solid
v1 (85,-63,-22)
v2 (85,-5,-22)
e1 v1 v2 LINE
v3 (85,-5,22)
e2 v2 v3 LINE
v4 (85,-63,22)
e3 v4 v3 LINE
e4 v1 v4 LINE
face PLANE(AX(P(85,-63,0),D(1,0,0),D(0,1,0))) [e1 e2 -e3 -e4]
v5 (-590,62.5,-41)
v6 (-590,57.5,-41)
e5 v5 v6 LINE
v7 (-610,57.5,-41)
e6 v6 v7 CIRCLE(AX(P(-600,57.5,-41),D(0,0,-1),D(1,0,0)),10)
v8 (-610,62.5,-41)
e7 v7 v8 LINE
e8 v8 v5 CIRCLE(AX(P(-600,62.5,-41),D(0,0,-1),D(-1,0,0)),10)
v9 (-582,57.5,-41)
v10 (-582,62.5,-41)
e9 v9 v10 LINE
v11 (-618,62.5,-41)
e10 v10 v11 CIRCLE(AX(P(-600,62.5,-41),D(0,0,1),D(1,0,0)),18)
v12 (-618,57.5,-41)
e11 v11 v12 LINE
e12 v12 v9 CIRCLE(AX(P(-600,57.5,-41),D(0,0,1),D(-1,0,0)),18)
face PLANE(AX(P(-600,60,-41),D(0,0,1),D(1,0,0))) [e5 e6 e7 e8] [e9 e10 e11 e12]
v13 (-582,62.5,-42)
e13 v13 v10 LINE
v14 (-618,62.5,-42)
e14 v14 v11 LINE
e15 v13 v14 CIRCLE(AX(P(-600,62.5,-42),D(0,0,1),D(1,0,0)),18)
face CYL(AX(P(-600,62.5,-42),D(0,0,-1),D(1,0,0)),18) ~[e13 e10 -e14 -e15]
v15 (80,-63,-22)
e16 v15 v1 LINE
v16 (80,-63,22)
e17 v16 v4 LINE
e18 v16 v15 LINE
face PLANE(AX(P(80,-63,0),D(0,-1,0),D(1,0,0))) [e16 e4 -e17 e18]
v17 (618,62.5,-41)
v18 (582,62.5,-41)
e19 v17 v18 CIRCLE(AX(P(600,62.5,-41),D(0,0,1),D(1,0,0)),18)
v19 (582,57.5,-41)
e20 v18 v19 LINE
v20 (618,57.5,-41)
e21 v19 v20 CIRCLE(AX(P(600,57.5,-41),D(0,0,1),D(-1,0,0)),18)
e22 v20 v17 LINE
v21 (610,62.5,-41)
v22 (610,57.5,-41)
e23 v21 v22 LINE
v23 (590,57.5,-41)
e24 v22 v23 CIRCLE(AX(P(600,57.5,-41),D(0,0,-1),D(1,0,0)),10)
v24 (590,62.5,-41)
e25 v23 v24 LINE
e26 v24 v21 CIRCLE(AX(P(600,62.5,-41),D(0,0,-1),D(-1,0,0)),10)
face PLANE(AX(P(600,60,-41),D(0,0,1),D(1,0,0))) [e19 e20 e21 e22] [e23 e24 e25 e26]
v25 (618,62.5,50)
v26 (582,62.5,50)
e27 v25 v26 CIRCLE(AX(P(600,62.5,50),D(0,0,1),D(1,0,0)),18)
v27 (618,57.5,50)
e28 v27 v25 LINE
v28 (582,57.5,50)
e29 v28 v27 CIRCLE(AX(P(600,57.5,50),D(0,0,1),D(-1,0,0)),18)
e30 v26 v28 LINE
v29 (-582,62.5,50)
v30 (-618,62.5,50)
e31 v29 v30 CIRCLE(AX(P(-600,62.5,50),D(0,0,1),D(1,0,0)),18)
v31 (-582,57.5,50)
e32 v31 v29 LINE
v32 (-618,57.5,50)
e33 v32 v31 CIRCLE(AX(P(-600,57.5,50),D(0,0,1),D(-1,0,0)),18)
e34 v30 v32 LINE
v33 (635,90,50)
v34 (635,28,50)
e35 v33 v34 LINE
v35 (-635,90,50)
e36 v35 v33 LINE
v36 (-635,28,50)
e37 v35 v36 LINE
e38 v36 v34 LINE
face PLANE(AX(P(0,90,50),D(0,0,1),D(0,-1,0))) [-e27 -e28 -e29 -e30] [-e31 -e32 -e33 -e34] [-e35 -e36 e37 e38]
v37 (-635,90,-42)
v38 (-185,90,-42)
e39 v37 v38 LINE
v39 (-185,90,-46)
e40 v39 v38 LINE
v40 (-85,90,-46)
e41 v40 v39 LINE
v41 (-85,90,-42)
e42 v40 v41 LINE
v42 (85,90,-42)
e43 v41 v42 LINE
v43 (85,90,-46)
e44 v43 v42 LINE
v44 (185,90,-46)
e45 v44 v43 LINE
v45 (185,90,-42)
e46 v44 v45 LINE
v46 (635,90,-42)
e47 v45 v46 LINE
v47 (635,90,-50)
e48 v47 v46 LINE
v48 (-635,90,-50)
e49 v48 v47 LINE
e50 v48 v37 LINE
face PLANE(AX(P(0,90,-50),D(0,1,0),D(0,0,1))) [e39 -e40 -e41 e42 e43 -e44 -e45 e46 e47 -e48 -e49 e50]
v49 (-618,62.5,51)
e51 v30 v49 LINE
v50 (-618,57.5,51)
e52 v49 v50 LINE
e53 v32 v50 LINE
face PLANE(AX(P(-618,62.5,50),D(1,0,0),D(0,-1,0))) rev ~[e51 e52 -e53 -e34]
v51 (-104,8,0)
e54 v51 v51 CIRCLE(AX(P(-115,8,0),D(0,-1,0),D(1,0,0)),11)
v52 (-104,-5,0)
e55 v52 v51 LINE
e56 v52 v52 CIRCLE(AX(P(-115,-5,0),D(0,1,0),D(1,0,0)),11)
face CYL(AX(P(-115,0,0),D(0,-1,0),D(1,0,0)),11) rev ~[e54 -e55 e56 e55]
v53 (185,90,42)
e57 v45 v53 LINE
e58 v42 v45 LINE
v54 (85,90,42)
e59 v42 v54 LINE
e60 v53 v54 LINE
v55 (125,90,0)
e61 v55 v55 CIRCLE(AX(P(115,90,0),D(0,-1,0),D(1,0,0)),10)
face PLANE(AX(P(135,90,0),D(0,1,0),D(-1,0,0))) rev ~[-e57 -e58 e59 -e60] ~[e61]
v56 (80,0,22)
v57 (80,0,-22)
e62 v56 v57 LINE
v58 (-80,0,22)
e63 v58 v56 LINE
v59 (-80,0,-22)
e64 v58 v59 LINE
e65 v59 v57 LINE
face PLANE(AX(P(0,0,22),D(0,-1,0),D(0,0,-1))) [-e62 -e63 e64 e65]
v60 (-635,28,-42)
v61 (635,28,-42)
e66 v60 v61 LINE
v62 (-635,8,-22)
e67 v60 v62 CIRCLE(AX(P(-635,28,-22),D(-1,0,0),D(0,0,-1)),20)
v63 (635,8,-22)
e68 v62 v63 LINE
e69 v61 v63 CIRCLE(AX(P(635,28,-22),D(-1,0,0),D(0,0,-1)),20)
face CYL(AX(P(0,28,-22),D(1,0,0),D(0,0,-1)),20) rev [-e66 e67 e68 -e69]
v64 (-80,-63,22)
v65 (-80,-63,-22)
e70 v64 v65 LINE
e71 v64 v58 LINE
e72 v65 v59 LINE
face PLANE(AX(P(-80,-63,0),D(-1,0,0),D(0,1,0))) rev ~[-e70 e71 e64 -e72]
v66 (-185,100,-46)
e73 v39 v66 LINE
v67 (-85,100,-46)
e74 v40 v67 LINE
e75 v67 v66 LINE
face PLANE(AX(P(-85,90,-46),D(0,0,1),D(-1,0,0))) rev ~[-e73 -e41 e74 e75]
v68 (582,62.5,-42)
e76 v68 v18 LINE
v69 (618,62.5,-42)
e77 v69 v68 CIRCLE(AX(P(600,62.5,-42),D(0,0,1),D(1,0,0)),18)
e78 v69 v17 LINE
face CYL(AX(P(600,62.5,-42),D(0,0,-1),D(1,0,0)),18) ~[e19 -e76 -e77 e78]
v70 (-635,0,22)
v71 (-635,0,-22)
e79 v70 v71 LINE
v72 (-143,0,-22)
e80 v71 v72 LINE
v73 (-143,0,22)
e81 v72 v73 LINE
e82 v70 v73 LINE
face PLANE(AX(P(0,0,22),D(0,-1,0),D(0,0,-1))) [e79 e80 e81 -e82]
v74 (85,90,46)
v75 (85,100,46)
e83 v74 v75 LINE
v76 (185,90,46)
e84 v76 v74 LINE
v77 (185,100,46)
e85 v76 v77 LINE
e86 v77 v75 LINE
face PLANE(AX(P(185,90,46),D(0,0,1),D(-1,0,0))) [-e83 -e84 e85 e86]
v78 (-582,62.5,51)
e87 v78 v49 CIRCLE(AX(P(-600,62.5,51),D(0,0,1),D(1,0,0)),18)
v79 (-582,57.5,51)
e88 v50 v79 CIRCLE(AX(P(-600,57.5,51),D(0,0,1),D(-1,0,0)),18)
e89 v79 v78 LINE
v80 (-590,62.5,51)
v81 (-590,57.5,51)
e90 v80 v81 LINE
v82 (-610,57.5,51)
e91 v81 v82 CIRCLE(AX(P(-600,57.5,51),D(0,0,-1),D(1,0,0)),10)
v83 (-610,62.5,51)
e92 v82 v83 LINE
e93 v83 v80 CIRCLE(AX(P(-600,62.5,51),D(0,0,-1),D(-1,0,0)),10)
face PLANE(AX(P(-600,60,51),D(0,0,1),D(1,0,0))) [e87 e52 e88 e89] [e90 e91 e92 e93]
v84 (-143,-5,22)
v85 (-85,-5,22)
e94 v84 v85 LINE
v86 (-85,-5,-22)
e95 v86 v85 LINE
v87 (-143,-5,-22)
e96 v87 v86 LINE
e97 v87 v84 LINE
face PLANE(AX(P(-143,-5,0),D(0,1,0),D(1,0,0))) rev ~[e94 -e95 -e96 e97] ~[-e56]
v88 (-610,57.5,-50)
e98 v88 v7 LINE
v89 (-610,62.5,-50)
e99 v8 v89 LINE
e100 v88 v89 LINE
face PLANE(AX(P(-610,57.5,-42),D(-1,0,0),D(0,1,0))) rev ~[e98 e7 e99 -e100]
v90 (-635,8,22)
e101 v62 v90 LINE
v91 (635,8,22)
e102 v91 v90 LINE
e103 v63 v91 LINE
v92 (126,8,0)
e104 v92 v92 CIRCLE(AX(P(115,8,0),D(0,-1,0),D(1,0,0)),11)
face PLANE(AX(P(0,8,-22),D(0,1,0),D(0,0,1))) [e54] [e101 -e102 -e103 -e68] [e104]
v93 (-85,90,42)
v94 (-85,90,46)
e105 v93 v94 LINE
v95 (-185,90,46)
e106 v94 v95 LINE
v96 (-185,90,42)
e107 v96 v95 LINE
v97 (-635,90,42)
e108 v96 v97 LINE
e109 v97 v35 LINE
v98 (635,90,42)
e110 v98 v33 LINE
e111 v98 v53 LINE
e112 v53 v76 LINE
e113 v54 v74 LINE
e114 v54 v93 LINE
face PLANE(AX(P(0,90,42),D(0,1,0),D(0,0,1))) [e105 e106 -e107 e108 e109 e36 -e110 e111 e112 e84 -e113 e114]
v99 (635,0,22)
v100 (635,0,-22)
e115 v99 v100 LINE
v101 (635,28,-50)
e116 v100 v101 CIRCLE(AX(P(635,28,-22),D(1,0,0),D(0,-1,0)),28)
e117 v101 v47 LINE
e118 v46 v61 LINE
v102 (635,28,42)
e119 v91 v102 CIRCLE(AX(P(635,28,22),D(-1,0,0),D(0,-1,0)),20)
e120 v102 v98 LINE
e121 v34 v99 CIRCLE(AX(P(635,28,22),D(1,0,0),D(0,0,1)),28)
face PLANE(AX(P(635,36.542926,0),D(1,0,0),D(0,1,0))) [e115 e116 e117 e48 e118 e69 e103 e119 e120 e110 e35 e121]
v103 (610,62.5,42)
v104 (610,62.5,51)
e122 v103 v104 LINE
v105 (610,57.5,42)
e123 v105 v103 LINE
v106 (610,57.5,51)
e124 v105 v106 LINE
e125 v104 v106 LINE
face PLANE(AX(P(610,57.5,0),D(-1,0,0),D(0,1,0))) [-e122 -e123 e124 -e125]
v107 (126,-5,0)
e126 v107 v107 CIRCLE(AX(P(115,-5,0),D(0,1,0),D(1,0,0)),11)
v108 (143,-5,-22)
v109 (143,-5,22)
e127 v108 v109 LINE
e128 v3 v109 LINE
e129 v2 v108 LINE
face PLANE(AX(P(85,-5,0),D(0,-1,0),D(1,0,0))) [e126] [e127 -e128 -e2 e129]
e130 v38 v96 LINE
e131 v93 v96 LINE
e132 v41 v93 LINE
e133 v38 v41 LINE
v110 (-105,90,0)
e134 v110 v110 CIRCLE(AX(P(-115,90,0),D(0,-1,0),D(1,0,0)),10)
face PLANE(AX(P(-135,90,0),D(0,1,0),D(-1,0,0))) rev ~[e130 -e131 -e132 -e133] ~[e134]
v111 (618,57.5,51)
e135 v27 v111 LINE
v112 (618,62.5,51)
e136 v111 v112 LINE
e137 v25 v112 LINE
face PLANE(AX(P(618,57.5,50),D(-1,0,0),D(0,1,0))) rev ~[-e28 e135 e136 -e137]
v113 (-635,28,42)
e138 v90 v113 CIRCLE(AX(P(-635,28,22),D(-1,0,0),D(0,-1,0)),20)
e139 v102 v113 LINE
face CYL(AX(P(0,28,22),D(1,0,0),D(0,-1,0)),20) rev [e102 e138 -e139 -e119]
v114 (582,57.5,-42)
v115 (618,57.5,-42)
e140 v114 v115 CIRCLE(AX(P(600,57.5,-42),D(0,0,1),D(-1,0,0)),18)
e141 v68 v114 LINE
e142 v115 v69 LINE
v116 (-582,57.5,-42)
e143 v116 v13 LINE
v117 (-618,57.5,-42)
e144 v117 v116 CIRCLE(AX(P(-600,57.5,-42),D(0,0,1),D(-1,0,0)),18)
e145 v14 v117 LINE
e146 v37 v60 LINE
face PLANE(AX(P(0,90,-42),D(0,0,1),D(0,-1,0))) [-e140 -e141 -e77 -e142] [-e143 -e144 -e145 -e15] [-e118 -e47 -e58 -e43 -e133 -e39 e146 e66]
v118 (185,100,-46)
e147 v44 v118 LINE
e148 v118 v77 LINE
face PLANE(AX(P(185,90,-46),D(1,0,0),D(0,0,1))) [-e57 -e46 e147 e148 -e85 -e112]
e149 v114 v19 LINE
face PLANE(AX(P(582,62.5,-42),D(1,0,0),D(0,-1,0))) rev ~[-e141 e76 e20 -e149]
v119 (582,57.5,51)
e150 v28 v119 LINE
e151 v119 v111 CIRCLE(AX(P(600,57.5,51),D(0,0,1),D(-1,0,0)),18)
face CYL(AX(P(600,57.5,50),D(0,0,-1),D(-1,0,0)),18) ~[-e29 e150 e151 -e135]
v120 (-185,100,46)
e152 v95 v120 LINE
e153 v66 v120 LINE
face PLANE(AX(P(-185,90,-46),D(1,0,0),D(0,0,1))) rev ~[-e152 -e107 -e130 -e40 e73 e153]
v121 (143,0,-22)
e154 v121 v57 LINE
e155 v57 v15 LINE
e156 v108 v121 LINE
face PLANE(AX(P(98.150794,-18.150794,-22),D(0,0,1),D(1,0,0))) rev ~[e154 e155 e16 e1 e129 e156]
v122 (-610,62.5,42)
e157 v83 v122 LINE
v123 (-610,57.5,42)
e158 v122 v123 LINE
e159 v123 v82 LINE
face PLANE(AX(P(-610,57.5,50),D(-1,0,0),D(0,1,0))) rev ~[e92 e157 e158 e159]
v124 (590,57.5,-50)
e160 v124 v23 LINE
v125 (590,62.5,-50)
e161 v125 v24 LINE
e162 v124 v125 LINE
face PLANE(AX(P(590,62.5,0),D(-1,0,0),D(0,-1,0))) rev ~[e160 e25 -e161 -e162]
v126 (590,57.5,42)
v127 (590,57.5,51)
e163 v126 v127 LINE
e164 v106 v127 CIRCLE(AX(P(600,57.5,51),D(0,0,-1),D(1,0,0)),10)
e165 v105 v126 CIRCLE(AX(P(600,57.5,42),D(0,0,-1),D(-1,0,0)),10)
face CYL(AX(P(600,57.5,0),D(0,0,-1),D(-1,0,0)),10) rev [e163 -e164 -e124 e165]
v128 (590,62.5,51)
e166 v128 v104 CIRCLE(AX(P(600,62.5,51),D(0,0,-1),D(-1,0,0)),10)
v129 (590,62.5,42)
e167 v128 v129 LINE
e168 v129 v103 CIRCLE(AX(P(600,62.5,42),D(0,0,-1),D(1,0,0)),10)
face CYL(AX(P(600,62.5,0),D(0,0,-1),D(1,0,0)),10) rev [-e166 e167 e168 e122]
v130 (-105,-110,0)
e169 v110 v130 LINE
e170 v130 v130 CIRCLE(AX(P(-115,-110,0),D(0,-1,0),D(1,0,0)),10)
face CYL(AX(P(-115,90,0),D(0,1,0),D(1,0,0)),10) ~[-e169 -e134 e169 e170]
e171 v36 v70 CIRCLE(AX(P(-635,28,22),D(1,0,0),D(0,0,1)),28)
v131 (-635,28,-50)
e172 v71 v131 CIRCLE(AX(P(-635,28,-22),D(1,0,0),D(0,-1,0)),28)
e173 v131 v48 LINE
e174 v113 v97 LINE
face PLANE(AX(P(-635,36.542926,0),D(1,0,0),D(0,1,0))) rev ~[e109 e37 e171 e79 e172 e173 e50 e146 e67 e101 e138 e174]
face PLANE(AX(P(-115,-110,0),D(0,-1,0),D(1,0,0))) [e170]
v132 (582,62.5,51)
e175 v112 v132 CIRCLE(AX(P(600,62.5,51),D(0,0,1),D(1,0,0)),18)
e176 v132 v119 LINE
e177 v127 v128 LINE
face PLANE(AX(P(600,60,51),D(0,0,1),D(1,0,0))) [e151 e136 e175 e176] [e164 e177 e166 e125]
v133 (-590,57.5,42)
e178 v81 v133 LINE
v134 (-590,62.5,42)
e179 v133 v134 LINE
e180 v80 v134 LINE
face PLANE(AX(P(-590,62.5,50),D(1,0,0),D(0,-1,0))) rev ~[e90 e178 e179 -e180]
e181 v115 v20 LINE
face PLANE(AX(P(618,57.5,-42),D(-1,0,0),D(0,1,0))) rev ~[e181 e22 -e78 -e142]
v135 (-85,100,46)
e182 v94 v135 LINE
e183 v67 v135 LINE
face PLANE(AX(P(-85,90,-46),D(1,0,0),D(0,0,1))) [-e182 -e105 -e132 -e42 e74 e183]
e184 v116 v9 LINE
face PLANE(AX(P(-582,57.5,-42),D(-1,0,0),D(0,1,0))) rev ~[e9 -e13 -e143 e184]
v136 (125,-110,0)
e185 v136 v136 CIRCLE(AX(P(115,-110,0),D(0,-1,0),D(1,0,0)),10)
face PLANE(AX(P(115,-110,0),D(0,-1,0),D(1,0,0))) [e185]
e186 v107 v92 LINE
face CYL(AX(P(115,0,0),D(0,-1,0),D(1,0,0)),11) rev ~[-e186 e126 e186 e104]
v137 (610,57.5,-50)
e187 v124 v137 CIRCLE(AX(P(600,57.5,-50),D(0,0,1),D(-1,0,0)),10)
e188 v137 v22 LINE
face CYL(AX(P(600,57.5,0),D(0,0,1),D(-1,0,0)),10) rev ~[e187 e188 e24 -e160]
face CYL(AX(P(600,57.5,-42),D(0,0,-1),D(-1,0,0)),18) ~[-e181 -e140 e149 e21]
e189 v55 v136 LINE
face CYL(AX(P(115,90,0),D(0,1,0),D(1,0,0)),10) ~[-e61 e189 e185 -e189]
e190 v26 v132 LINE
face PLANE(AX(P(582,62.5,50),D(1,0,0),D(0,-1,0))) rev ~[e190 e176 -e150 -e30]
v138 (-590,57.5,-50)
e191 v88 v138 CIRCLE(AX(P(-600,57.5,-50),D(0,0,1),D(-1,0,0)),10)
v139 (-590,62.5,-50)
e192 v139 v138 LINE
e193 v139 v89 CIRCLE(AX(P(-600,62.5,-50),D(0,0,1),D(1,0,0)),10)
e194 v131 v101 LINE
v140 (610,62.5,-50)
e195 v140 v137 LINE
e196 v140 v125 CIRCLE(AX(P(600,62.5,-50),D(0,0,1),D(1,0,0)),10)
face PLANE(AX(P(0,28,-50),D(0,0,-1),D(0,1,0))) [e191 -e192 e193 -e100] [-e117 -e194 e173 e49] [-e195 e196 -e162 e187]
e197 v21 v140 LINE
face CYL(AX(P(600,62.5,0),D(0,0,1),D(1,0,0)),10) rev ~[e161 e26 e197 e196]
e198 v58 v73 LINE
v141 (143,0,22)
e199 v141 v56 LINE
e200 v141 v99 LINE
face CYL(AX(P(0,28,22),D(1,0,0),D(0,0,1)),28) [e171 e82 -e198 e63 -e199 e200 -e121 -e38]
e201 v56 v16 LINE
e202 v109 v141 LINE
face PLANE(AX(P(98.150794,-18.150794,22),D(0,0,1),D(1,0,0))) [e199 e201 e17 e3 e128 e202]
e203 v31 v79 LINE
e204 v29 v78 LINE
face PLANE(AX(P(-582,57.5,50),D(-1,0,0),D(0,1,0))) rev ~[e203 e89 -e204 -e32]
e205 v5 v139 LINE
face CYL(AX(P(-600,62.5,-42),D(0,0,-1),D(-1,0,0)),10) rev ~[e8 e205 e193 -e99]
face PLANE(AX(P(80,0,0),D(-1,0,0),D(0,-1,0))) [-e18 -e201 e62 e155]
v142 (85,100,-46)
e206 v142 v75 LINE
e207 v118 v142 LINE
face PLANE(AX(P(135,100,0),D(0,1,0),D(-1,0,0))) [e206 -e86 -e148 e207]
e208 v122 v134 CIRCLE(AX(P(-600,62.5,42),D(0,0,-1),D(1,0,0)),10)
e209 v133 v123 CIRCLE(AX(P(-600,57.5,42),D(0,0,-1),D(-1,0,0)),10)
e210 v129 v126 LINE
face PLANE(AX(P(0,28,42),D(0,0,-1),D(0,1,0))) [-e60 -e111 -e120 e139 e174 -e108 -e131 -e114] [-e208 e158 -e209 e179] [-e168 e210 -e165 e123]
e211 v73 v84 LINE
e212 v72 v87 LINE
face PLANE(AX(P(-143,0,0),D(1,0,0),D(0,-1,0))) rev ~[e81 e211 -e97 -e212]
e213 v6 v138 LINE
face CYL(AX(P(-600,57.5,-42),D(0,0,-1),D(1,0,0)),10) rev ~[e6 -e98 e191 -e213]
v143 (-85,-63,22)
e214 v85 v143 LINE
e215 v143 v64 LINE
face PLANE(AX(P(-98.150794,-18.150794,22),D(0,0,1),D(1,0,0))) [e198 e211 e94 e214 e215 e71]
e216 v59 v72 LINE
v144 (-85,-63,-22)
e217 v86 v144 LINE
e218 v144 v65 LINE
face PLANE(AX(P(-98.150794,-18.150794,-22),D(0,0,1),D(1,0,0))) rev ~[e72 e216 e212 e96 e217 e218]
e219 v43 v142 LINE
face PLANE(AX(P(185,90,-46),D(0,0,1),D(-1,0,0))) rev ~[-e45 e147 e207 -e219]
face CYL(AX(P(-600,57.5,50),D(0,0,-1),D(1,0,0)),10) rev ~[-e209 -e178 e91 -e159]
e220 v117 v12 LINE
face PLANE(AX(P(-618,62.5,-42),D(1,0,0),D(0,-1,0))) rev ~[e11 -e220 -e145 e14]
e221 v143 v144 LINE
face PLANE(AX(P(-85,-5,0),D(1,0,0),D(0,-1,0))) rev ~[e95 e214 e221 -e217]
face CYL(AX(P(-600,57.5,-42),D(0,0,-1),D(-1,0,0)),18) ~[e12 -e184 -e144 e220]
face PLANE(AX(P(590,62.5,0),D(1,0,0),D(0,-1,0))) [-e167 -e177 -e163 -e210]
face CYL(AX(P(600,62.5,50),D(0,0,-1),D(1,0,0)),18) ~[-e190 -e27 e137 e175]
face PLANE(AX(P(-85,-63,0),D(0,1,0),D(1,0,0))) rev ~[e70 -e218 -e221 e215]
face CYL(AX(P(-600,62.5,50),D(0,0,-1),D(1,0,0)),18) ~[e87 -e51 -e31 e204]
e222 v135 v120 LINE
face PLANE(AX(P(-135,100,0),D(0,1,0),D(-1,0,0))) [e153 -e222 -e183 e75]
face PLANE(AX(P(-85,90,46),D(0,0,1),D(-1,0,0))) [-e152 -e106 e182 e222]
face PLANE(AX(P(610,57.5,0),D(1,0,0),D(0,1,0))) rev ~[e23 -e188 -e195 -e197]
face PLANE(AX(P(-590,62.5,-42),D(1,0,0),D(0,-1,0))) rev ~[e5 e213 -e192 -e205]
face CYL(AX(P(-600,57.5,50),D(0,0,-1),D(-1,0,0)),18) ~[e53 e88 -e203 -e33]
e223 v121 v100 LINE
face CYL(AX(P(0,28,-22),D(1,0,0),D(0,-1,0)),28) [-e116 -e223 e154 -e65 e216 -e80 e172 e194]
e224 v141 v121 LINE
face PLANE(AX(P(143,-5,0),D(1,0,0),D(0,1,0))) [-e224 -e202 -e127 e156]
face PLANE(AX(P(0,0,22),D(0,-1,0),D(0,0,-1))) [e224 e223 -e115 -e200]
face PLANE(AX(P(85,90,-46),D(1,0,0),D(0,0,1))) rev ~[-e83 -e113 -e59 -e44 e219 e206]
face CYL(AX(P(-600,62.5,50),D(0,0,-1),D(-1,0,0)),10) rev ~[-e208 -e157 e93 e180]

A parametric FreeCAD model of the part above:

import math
import FreeCAD as App
import Part
import Sketcher

V = App.Vector
Q = App.Units.Quantity

doc = App.newDocument("Part")
body = doc.addObject("PartDesign::Body", "Body")

sketch1 = body.newObject("Sketcher::SketchObject", "Sketch")
sketch1.AttachmentSupport = (doc.getObject("YZ_Plane"), [""])
sketch1.MapMode = "FlatFace"
sketch1.addGeometry(Part.LineSegment(V(90, 42, 0), V(90, 50, 0)), False)
sketch1.addGeometry(Part.LineSegment(V(90, 50, 0), V(28, 50, 0)), False)
sketch1.addGeometry(Part.ArcOfCircle(Part.Circle(V(28, 22, 0), V(0, 0, 1), 28), math.radians(90), math.radians(180)), False)
sketch1.addGeometry(Part.LineSegment(V(0, 22, 0), V(0, -22, 0)), False)
sketch1.addGeometry(Part.ArcOfCircle(Part.Circle(V(28, -22, 0), V(0, 0, 1), 28), math.radians(180), math.radians(270)), False)
sketch1.addGeometry(Part.LineSegment(V(28, -50, 0), V(90, -50, 0)), False)
sketch1.addGeometry(Part.LineSegment(V(90, -50, 0), V(90, -42, 0)), False)
sketch1.addGeometry(Part.LineSegment(V(90, -42, 0), V(28, -42, 0)), False)
sketch1.addGeometry(Part.ArcOfCircle(Part.Circle(V(28, -22, 0), V(0, 0, 1), 20), math.radians(180), math.radians(270)), False)
sketch1.addGeometry(Part.LineSegment(V(8, -22, 0), V(8, 22, 0)), False)
sketch1.addGeometry(Part.ArcOfCircle(Part.Circle(V(28, 22, 0), V(0, 0, 1), 20), math.radians(90), math.radians(180)), False)
sketch1.addGeometry(Part.LineSegment(V(28, 42, 0), V(90, 42, 0)), False)
sketch1.addConstraint(Sketcher.Constraint("Coincident", 0, 2, 1, 1))
sketch1.addConstraint(Sketcher.Constraint("Tangent", 1, 2, 2, 1))
sketch1.addConstraint(Sketcher.Constraint("Tangent", 2, 2, 3, 1))
sketch1.addConstraint(Sketcher.Constraint("Tangent", 3, 2, 4, 1))
sketch1.addConstraint(Sketcher.Constraint("Tangent", 4, 2, 5, 1))
sketch1.addConstraint(Sketcher.Constraint("Coincident", 5, 2, 6, 1))
sketch1.addConstraint(Sketcher.Constraint("Coincident", 6, 2, 7, 1))
sketch1.addConstraint(Sketcher.Constraint("Tangent", 7, 2, 8, 2))
sketch1.addConstraint(Sketcher.Constraint("Tangent", 8, 1, 9, 1))
sketch1.addConstraint(Sketcher.Constraint("Tangent", 9, 2, 10, 2))
sketch1.addConstraint(Sketcher.Constraint("Tangent", 10, 1, 11, 1))
sketch1.addConstraint(Sketcher.Constraint("Coincident", 11, 2, 0, 1))
sketch1.addConstraint(Sketcher.Constraint("Vertical", 0))
sketch1.addConstraint(Sketcher.Constraint("Horizontal", 1))
sketch1.addConstraint(Sketcher.Constraint("Vertical", 3))
sketch1.addConstraint(Sketcher.Constraint("Horizontal", 5))
sketch1.addConstraint(Sketcher.Constraint("Vertical", 6))
sketch1.addConstraint(Sketcher.Constraint("Horizontal", 7))
sketch1.addConstraint(Sketcher.Constraint("Vertical", 9))
sketch1.addConstraint(Sketcher.Constraint("Horizontal", 11))
sketch1.addConstraint(Sketcher.Constraint("Coincident", 8, 3, 4, 3))
sketch1.addConstraint(Sketcher.Constraint("Coincident", 10, 3, 2, 3))
sketch1.addConstraint(Sketcher.Constraint("Equal", 2, 4))
sketch1.addConstraint(Sketcher.Constraint("Symmetric", 2, 2, 3, 2, -1, 1))
sketch1.addConstraint(Sketcher.Constraint("Vertical", 0, 2, 5, 2))
sketch1.addConstraint(Sketcher.Constraint("Radius", 2, Q("28 mm")))
sketch1.addConstraint(Sketcher.Constraint("Radius", 8, Q("20 mm")))
sketch1.addConstraint(Sketcher.Constraint("DistanceX", 1, 2, 1, 1, Q("62 mm")))
sketch1.addConstraint(Sketcher.Constraint("DistanceY", 3, 2, 3, 1, Q("44 mm")))
pad1 = body.newObject("PartDesign::Pad", "Pad")
pad1.Profile = sketch1
pad1.Length = 1270
pad1.Midplane = True

sketch2 = body.newObject("Sketcher::SketchObject", "Sketch001")
sketch2.AttachmentSupport = (doc.getObject("XY_Plane"), [""])
sketch2.MapMode = "FlatFace"
sketch2.addGeometry(Part.LineSegment(V(-80, 0, 0), V(-143, 0, 0)), False)
sketch2.addGeometry(Part.LineSegment(V(-143, 0, 0), V(-143, -5, 0)), False)
sketch2.addGeometry(Part.LineSegment(V(-143, -5, 0), V(-85, -5, 0)), False)
sketch2.addGeometry(Part.LineSegment(V(-85, -5, 0), V(-85, -63, 0)), False)
sketch2.addGeometry(Part.LineSegment(V(-85, -63, 0), V(-80, -63, 0)), False)
sketch2.addGeometry(Part.LineSegment(V(-80, -63, 0), V(-80, 0, 0)), False)
sketch2.addGeometry(Part.LineSegment(V(80, -63, 0), V(85, -63, 0)), False)
sketch2.addGeometry(Part.LineSegment(V(85, -63, 0), V(85, -5, 0)), False)
sketch2.addGeometry(Part.LineSegment(V(85, -5, 0), V(143, -5, 0)), False)
sketch2.addGeometry(Part.LineSegment(V(143, -5, 0), V(143, 0, 0)), False)
sketch2.addGeometry(Part.LineSegment(V(143, 0, 0), V(80, 0, 0)), False)
sketch2.addGeometry(Part.LineSegment(V(80, 0, 0), V(80, -63, 0)), False)
sketch2.addConstraint(Sketcher.Constraint("Coincident", 0, 2, 1, 1))
sketch2.addConstraint(Sketcher.Constraint("Coincident", 1, 2, 2, 1))
sketch2.addConstraint(Sketcher.Constraint("Coincident", 2, 2, 3, 1))
sketch2.addConstraint(Sketcher.Constraint("Coincident", 3, 2, 4, 1))
sketch2.addConstraint(Sketcher.Constraint("Coincident", 4, 2, 5, 1))
sketch2.addConstraint(Sketcher.Constraint("Coincident", 5, 2, 0, 1))
sketch2.addConstraint(Sketcher.Constraint("Coincident", 6, 2, 7, 1))
sketch2.addConstraint(Sketcher.Constraint("Coincident", 7, 2, 8, 1))
sketch2.addConstraint(Sketcher.Constraint("Coincident", 8, 2, 9, 1))
sketch2.addConstraint(Sketcher.Constraint("Coincident", 9, 2, 10, 1))
sketch2.addConstraint(Sketcher.Constraint("Coincident", 10, 2, 11, 1))
sketch2.addConstraint(Sketcher.Constraint("Coincident", 11, 2, 6, 1))
sketch2.addConstraint(Sketcher.Constraint("Horizontal", 0))
sketch2.addConstraint(Sketcher.Constraint("Vertical", 1))
sketch2.addConstraint(Sketcher.Constraint("Horizontal", 2))
sketch2.addConstraint(Sketcher.Constraint("Vertical", 3))
sketch2.addConstraint(Sketcher.Constraint("Horizontal", 4))
sketch2.addConstraint(Sketcher.Constraint("Vertical", 5))
sketch2.addConstraint(Sketcher.Constraint("Horizontal", 6))
sketch2.addConstraint(Sketcher.Constraint("Vertical", 7))
sketch2.addConstraint(Sketcher.Constraint("Horizontal", 8))
sketch2.addConstraint(Sketcher.Constraint("Vertical", 9))
sketch2.addConstraint(Sketcher.Constraint("Horizontal", 10))
sketch2.addConstraint(Sketcher.Constraint("Vertical", 11))
sketch2.addConstraint(Sketcher.Constraint("Symmetric", 0, 2, 9, 2, -1, 1))
sketch2.addConstraint(Sketcher.Constraint("Symmetric", 3, 2, 6, 2, -2))
sketch2.addConstraint(Sketcher.Constraint("Symmetric", 5, 2, 10, 2, -2))
sketch2.addConstraint(Sketcher.Constraint("Horizontal", 2, 2, 7, 2))
sketch2.addConstraint(Sketcher.Constraint("Equal", 6, 1))
sketch2.addConstraint(Sketcher.Constraint("Equal", 8, 3))
sketch2.addConstraint(Sketcher.Constraint("DistanceX", 0, 2, 0, 1, Q("63 mm")))
sketch2.addConstraint(Sketcher.Constraint("DistanceX", 2, 1, 2, 2, Q("58 mm")))
sketch2.addConstraint(Sketcher.Constraint("DistanceX", 0, 2, -1, 1, Q("143 mm")))
pad2 = body.newObject("PartDesign::Pad", "Pad001")
pad2.Profile = sketch2
pad2.Length = 44
pad2.Midplane = True

sketch3 = body.newObject("Sketcher::SketchObject", "Sketch002")
sketch3.AttachmentSupport = (doc.getObject("XZ_Plane"), [""])
sketch3.MapMode = "FlatFace"
sketch3.AttachmentOffset = App.Placement(V(0, 0, -90), App.Rotation())
sketch3.addGeometry(Part.LineSegment(V(185, 46, 0), V(185, -46, 0)), False)
sketch3.addGeometry(Part.LineSegment(V(185, -46, 0), V(85, -46, 0)), False)
sketch3.addGeometry(Part.LineSegment(V(85, -46, 0), V(85, 46, 0)), False)
sketch3.addGeometry(Part.LineSegment(V(85, 46, 0), V(185, 46, 0)), False)
sketch3.addGeometry(Part.LineSegment(V(-85, 46, 0), V(-85, -46, 0)), False)
sketch3.addGeometry(Part.LineSegment(V(-85, -46, 0), V(-185, -46, 0)), False)
sketch3.addGeometry(Part.LineSegment(V(-185, -46, 0), V(-185, 46, 0)), False)
sketch3.addGeometry(Part.LineSegment(V(-185, 46, 0), V(-85, 46, 0)), False)
sketch3.addConstraint(Sketcher.Constraint("Coincident", 0, 2, 1, 1))
sketch3.addConstraint(Sketcher.Constraint("Coincident", 1, 2, 2, 1))
sketch3.addConstraint(Sketcher.Constraint("Coincident", 2, 2, 3, 1))
sketch3.addConstraint(Sketcher.Constraint("Coincident", 3, 2, 0, 1))
sketch3.addConstraint(Sketcher.Constraint("Coincident", 4, 2, 5, 1))
sketch3.addConstraint(Sketcher.Constraint("Coincident", 5, 2, 6, 1))
sketch3.addConstraint(Sketcher.Constraint("Coincident", 6, 2, 7, 1))
sketch3.addConstraint(Sketcher.Constraint("Coincident", 7, 2, 4, 1))
sketch3.addConstraint(Sketcher.Constraint("Vertical", 0))
sketch3.addConstraint(Sketcher.Constraint("Horizontal", 1))
sketch3.addConstraint(Sketcher.Constraint("Vertical", 2))
sketch3.addConstraint(Sketcher.Constraint("Horizontal", 3))
sketch3.addConstraint(Sketcher.Constraint("Vertical", 4))
sketch3.addConstraint(Sketcher.Constraint("Horizontal", 5))
sketch3.addConstraint(Sketcher.Constraint("Vertical", 6))
sketch3.addConstraint(Sketcher.Constraint("Horizontal", 7))
sketch3.addConstraint(Sketcher.Constraint("Symmetric", 2, 2, 4, 2, -1, 1))
sketch3.addConstraint(Sketcher.Constraint("Symmetric", 0, 2, 6, 2, -1, 1))
sketch3.addConstraint(Sketcher.Constraint("Horizontal", 1, 2, 4, 2))
sketch3.addConstraint(Sketcher.Constraint("DistanceX", 1, 2, 1, 1, Q("100 mm")))
sketch3.addConstraint(Sketcher.Constraint("DistanceY", 0, 2, 0, 1, Q("92 mm")))
sketch3.addConstraint(Sketcher.Constraint("DistanceX", -1, 1, 0, 2, Q("185 mm")))
pad3 = body.newObject("PartDesign::Pad", "Pad002")
pad3.Profile = sketch3
pad3.Length = 10
pad3.Reversed = True

sketch4 = body.newObject("Sketcher::SketchObject", "Sketch003")
sketch4.AttachmentSupport = (doc.getObject("XZ_Plane"), [""])
sketch4.MapMode = "FlatFace"
sketch4.addGeometry(Part.Circle(V(-115, 0, 0), V(0, 0, 1), 11), False)
sketch4.addGeometry(Part.Circle(V(115, 0, 0), V(0, 0, 1), 11), False)
sketch4.addConstraint(Sketcher.Constraint("Equal", 0, 1))
sketch4.addConstraint(Sketcher.Constraint("Symmetric", 0, 3, 1, 3, -1, 1))
sketch4.addConstraint(Sketcher.Constraint("PointOnObject", 0, 3, -1))
sketch4.addConstraint(Sketcher.Constraint("Diameter", 0, Q("22 mm")))
sketch4.addConstraint(Sketcher.Constraint("DistanceX", 0, 3, -1, 1, Q("115 mm")))
pocket1 = body.newObject("PartDesign::Pocket", "Pocket")
pocket1.Profile = sketch4
pocket1.Type = "TwoLengths"
pocket1.Length = 8
pocket1.Length2 = 63.001

sketch5 = body.newObject("Sketcher::SketchObject", "Sketch004")
sketch5.AttachmentSupport = (doc.getObject("XY_Plane"), [""])
sketch5.MapMode = "FlatFace"
sketch5.addGeometry(Part.LineSegment(V(-590, 58, 0), V(-590, 62, 0)), False)
sketch5.addGeometry(Part.ArcOfCircle(Part.Circle(V(-600, 62, 0), V(0, 0, 1), 10), math.radians(0), math.radians(180)), False)
sketch5.addGeometry(Part.LineSegment(V(-610, 62, 0), V(-610, 58, 0)), False)
sketch5.addGeometry(Part.ArcOfCircle(Part.Circle(V(-600, 58, 0), V(0, 0, 1), 10), math.radians(180), math.radians(360)), False)
sketch5.addGeometry(Part.ArcOfCircle(Part.Circle(V(600, 62, 0), V(0, 0, 1), 10), math.radians(0), math.radians(180)), False)
sketch5.addGeometry(Part.LineSegment(V(590, 62, 0), V(590, 58, 0)), False)
sketch5.addGeometry(Part.ArcOfCircle(Part.Circle(V(600, 58, 0), V(0, 0, 1), 10), math.radians(180), math.radians(360)), False)
sketch5.addGeometry(Part.LineSegment(V(610, 58, 0), V(610, 62, 0)), False)
sketch5.addConstraint(Sketcher.Constraint("Tangent", 0, 2, 1, 1))
sketch5.addConstraint(Sketcher.Constraint("Tangent", 1, 2, 2, 1))
sketch5.addConstraint(Sketcher.Constraint("Tangent", 2, 2, 3, 1))
sketch5.addConstraint(Sketcher.Constraint("Tangent", 3, 2, 0, 1))
sketch5.addConstraint(Sketcher.Constraint("Tangent", 4, 2, 5, 1))
sketch5.addConstraint(Sketcher.Constraint("Tangent", 5, 2, 6, 1))
sketch5.addConstraint(Sketcher.Constraint("Tangent", 6, 2, 7, 1))
sketch5.addConstraint(Sketcher.Constraint("Tangent", 7, 2, 4, 1))
sketch5.addConstraint(Sketcher.Constraint("Vertical", 0))
sketch5.addConstraint(Sketcher.Constraint("Vertical", 2))
sketch5.addConstraint(Sketcher.Constraint("Vertical", 5))
sketch5.addConstraint(Sketcher.Constraint("Vertical", 7))
sketch5.addConstraint(Sketcher.Constraint("Equal", 3, 4))
sketch5.addConstraint(Sketcher.Constraint("Symmetric", 1, 3, 4, 3, -2))
sketch5.addConstraint(Sketcher.Constraint("Horizontal", 3, 3, 6, 3))
sketch5.addConstraint(Sketcher.Constraint("Radius", 1, Q("10 mm")))
sketch5.addConstraint(Sketcher.Constraint("DistanceY", 0, 1, 0, 2, Q("5 mm")))
sketch5.addConstraint(Sketcher.Constraint("DistanceX", 1, 3, -1, 1, Q("600 mm")))
sketch5.addConstraint(Sketcher.Constraint("DistanceY", -1, 1, 1, 3, Q("62.5 mm")))
pocket2 = body.newObject("PartDesign::Pocket", "Pocket001")
pocket2.Profile = sketch5
pocket2.Type = "ThroughAll"
pocket2.Midplane = True

sketch6 = body.newObject("Sketcher::SketchObject", "Sketch005")
sketch6.AttachmentSupport = (doc.getObject("XY_Plane"), [""])
sketch6.MapMode = "FlatFace"
sketch6.AttachmentOffset = App.Placement(V(0, 0, 50), App.Rotation())
sketch6.addGeometry(Part.LineSegment(V(-582, 58, 0), V(-582, 62, 0)), False)
sketch6.addGeometry(Part.ArcOfCircle(Part.Circle(V(-600, 62, 0), V(0, 0, 1), 18), math.radians(0), math.radians(180)), False)
sketch6.addGeometry(Part.LineSegment(V(-618, 62, 0), V(-618, 58, 0)), False)
sketch6.addGeometry(Part.ArcOfCircle(Part.Circle(V(-600, 58, 0), V(0, 0, 1), 18), math.radians(180), math.radians(360)), False)
sketch6.addGeometry(Part.ArcOfCircle(Part.Circle(V(-600, 58, 0), V(0, 0, 1), 10), math.radians(180), math.radians(360)), False)
sketch6.addGeometry(Part.LineSegment(V(-610, 58, 0), V(-610, 62, 0)), False)
sketch6.addGeometry(Part.ArcOfCircle(Part.Circle(V(-600, 62, 0), V(0, 0, 1), 10), math.radians(0), math.radians(180)), False)
sketch6.addGeometry(Part.LineSegment(V(-590, 62, 0), V(-590, 58, 0)), False)
sketch6.addGeometry(Part.LineSegment(V(618, 58, 0), V(618, 62, 0)), False)
sketch6.addGeometry(Part.ArcOfCircle(Part.Circle(V(600, 62, 0), V(0, 0, 1), 18), math.radians(0), math.radians(180)), False)
sketch6.addGeometry(Part.LineSegment(V(582, 62, 0), V(582, 58, 0)), False)
sketch6.addGeometry(Part.ArcOfCircle(Part.Circle(V(600, 58, 0), V(0, 0, 1), 18), math.radians(180), math.radians(360)), False)
sketch6.addGeometry(Part.LineSegment(V(610, 62, 0), V(610, 58, 0)), False)
sketch6.addGeometry(Part.ArcOfCircle(Part.Circle(V(600, 58, 0), V(0, 0, 1), 10), math.radians(180), math.radians(360)), False)
sketch6.addGeometry(Part.LineSegment(V(590, 58, 0), V(590, 62, 0)), False)
sketch6.addGeometry(Part.ArcOfCircle(Part.Circle(V(600, 62, 0), V(0, 0, 1), 10), math.radians(0), math.radians(180)), False)
sketch6.addConstraint(Sketcher.Constraint("Tangent", 0, 2, 1, 1))
sketch6.addConstraint(Sketcher.Constraint("Tangent", 1, 2, 2, 1))
sketch6.addConstraint(Sketcher.Constraint("Tangent", 2, 2, 3, 1))
sketch6.addConstraint(Sketcher.Constraint("Tangent", 3, 2, 0, 1))
sketch6.addConstraint(Sketcher.Constraint("Tangent", 4, 1, 5, 1))
sketch6.addConstraint(Sketcher.Constraint("Tangent", 5, 2, 6, 2))
sketch6.addConstraint(Sketcher.Constraint("Tangent", 6, 1, 7, 1))
sketch6.addConstraint(Sketcher.Constraint("Tangent", 7, 2, 4, 2))
sketch6.addConstraint(Sketcher.Constraint("Tangent", 8, 2, 9, 1))
sketch6.addConstraint(Sketcher.Constraint("Tangent", 9, 2, 10, 1))
sketch6.addConstraint(Sketcher.Constraint("Tangent", 10, 2, 11, 1))
sketch6.addConstraint(Sketcher.Constraint("Tangent", 11, 2, 8, 1))
sketch6.addConstraint(Sketcher.Constraint("Tangent", 12, 2, 13, 2))
sketch6.addConstraint(Sketcher.Constraint("Tangent", 13, 1, 14, 1))
sketch6.addConstraint(Sketcher.Constraint("Tangent", 14, 2, 15, 2))
sketch6.addConstraint(Sketcher.Constraint("Tangent", 15, 1, 12, 1))
sketch6.addConstraint(Sketcher.Constraint("Vertical", 0))
sketch6.addConstraint(Sketcher.Constraint("Vertical", 2))
sketch6.addConstraint(Sketcher.Constraint("Vertical", 5))
sketch6.addConstraint(Sketcher.Constraint("Vertical", 7))
sketch6.addConstraint(Sketcher.Constraint("Vertical", 8))
sketch6.addConstraint(Sketcher.Constraint("Vertical", 10))
sketch6.addConstraint(Sketcher.Constraint("Vertical", 12))
sketch6.addConstraint(Sketcher.Constraint("Vertical", 14))
sketch6.addConstraint(Sketcher.Constraint("Coincident", 4, 3, 3, 3))
sketch6.addConstraint(Sketcher.Constraint("Coincident", 13, 3, 11, 3))
sketch6.addConstraint(Sketcher.Constraint("Equal", 3, 9))
sketch6.addConstraint(Sketcher.Constraint("Equal", 6, 13))
sketch6.addConstraint(Sketcher.Constraint("Symmetric", 1, 3, 9, 3, -2))
sketch6.addConstraint(Sketcher.Constraint("Horizontal", 6, 3, 9, 3))
sketch6.addConstraint(Sketcher.Constraint("Horizontal", 4, 3, 11, 3))
sketch6.addConstraint(Sketcher.Constraint("Horizontal", 6, 3, 15, 3))
sketch6.addConstraint(Sketcher.Constraint("Radius", 1, Q("18 mm")))
sketch6.addConstraint(Sketcher.Constraint("Radius", 4, Q("10 mm")))
sketch6.addConstraint(Sketcher.Constraint("DistanceY", 0, 1, 0, 2, Q("5 mm")))
sketch6.addConstraint(Sketcher.Constraint("DistanceX", 1, 3, -1, 1, Q("600 mm")))
sketch6.addConstraint(Sketcher.Constraint("DistanceY", -1, 1, 1, 3, Q("62.5 mm")))
pad4 = body.newObject("PartDesign::Pad", "Pad003")
pad4.Profile = sketch6
pad4.Length = 1

sketch7 = body.newObject("Sketcher::SketchObject", "Sketch006")
sketch7.AttachmentSupport = (doc.getObject("XY_Plane"), [""])
sketch7.MapMode = "FlatFace"
sketch7.AttachmentOffset = App.Placement(V(0, 0, -42), App.Rotation())
sketch7.addGeometry(Part.ArcOfCircle(Part.Circle(V(-600, 62, 0), V(0, 0, 1), 18), math.radians(0), math.radians(180)), False)
sketch7.addGeometry(Part.LineSegment(V(-618, 62, 0), V(-618, 58, 0)), False)
sketch7.addGeometry(Part.ArcOfCircle(Part.Circle(V(-600, 58, 0), V(0, 0, 1), 18), math.radians(180), math.radians(360)), False)
sketch7.addGeometry(Part.LineSegment(V(-582, 58, 0), V(-582, 62, 0)), False)
sketch7.addGeometry(Part.ArcOfCircle(Part.Circle(V(-600, 58, 0), V(0, 0, 1), 10), math.radians(180), math.radians(360)), False)
sketch7.addGeometry(Part.LineSegment(V(-610, 58, 0), V(-610, 62, 0)), False)
sketch7.addGeometry(Part.ArcOfCircle(Part.Circle(V(-600, 62, 0), V(0, 0, 1), 10), math.radians(0), math.radians(180)), False)
sketch7.addGeometry(Part.LineSegment(V(-590, 62, 0), V(-590, 58, 0)), False)
sketch7.addGeometry(Part.ArcOfCircle(Part.Circle(V(600, 62, 0), V(0, 0, 1), 18), math.radians(0), math.radians(180)), False)
sketch7.addGeometry(Part.LineSegment(V(582, 62, 0), V(582, 58, 0)), False)
sketch7.addGeometry(Part.ArcOfCircle(Part.Circle(V(600, 58, 0), V(0, 0, 1), 18), math.radians(180), math.radians(360)), False)
sketch7.addGeometry(Part.LineSegment(V(618, 58, 0), V(618, 62, 0)), False)
sketch7.addGeometry(Part.LineSegment(V(590, 58, 0), V(590, 62, 0)), False)
sketch7.addGeometry(Part.ArcOfCircle(Part.Circle(V(600, 62, 0), V(0, 0, 1), 10), math.radians(0), math.radians(180)), False)
sketch7.addGeometry(Part.LineSegment(V(610, 62, 0), V(610, 58, 0)), False)
sketch7.addGeometry(Part.ArcOfCircle(Part.Circle(V(600, 58, 0), V(0, 0, 1), 10), math.radians(180), math.radians(360)), False)
sketch7.addConstraint(Sketcher.Constraint("Tangent", 0, 2, 1, 1))
sketch7.addConstraint(Sketcher.Constraint("Tangent", 1, 2, 2, 1))
sketch7.addConstraint(Sketcher.Constraint("Tangent", 2, 2, 3, 1))
sketch7.addConstraint(Sketcher.Constraint("Tangent", 3, 2, 0, 1))
sketch7.addConstraint(Sketcher.Constraint("Tangent", 4, 1, 5, 1))
sketch7.addConstraint(Sketcher.Constraint("Tangent", 5, 2, 6, 2))
sketch7.addConstraint(Sketcher.Constraint("Tangent", 6, 1, 7, 1))
sketch7.addConstraint(Sketcher.Constraint("Tangent", 7, 2, 4, 2))
sketch7.addConstraint(Sketcher.Constraint("Tangent", 8, 2, 9, 1))
sketch7.addConstraint(Sketcher.Constraint("Tangent", 9, 2, 10, 1))
sketch7.addConstraint(Sketcher.Constraint("Tangent", 10, 2, 11, 1))
sketch7.addConstraint(Sketcher.Constraint("Tangent", 11, 2, 8, 1))
sketch7.addConstraint(Sketcher.Constraint("Tangent", 12, 2, 13, 2))
sketch7.addConstraint(Sketcher.Constraint("Tangent", 13, 1, 14, 1))
sketch7.addConstraint(Sketcher.Constraint("Tangent", 14, 2, 15, 2))
sketch7.addConstraint(Sketcher.Constraint("Tangent", 15, 1, 12, 1))
sketch7.addConstraint(Sketcher.Constraint("Vertical", 1))
sketch7.addConstraint(Sketcher.Constraint("Vertical", 3))
sketch7.addConstraint(Sketcher.Constraint("Vertical", 5))
sketch7.addConstraint(Sketcher.Constraint("Vertical", 7))
sketch7.addConstraint(Sketcher.Constraint("Vertical", 9))
sketch7.addConstraint(Sketcher.Constraint("Vertical", 11))
sketch7.addConstraint(Sketcher.Constraint("Vertical", 12))
sketch7.addConstraint(Sketcher.Constraint("Vertical", 14))
sketch7.addConstraint(Sketcher.Constraint("Coincident", 4, 3, 2, 3))
sketch7.addConstraint(Sketcher.Constraint("Coincident", 13, 3, 8, 3))
sketch7.addConstraint(Sketcher.Constraint("Equal", 2, 8))
sketch7.addConstraint(Sketcher.Constraint("Equal", 6, 13))
sketch7.addConstraint(Sketcher.Constraint("Symmetric", 0, 3, 8, 3, -2))
sketch7.addConstraint(Sketcher.Constraint("Horizontal", 6, 3, 8, 3))
sketch7.addConstraint(Sketcher.Constraint("Horizontal", 4, 3, 10, 3))
sketch7.addConstraint(Sketcher.Constraint("Horizontal", 4, 3, 15, 3))
sketch7.addConstraint(Sketcher.Constraint("Radius", 0, Q("18 mm")))
sketch7.addConstraint(Sketcher.Constraint("Radius", 4, Q("10 mm")))
sketch7.addConstraint(Sketcher.Constraint("DistanceY", 1, 2, 1, 1, Q("5 mm")))
sketch7.addConstraint(Sketcher.Constraint("DistanceX", 0, 3, -1, 1, Q("600 mm")))
sketch7.addConstraint(Sketcher.Constraint("DistanceY", -1, 1, 0, 3, Q("62.5 mm")))
pad5 = body.newObject("PartDesign::Pad", "Pad004")
pad5.Profile = sketch7
pad5.Length = 1

sketch8 = body.newObject("Sketcher::SketchObject", "Sketch007")
sketch8.AttachmentSupport = (doc.getObject("XZ_Plane"), [""])
sketch8.MapMode = "FlatFace"
sketch8.AttachmentOffset = App.Placement(V(0, 0, -90), App.Rotation())
sketch8.addGeometry(Part.Circle(V(-115, 0, 0), V(0, 0, 1), 10), False)
sketch8.addGeometry(Part.Circle(V(115, 0, 0), V(0, 0, 1), 10), False)
sketch8.addConstraint(Sketcher.Constraint("Equal", 0, 1))
sketch8.addConstraint(Sketcher.Constraint("Symmetric", 0, 3, 1, 3, -1, 1))
sketch8.addConstraint(Sketcher.Constraint("PointOnObject", 0, 3, -1))
sketch8.addConstraint(Sketcher.Constraint("Diameter", 0, Q("20 mm")))
sketch8.addConstraint(Sketcher.Constraint("DistanceX", 0, 3, -1, 1, Q("115 mm")))
pad6 = body.newObject("PartDesign::Pad", "Pad005")
pad6.Profile = sketch8
pad6.Length = 200

doc.recompute()
